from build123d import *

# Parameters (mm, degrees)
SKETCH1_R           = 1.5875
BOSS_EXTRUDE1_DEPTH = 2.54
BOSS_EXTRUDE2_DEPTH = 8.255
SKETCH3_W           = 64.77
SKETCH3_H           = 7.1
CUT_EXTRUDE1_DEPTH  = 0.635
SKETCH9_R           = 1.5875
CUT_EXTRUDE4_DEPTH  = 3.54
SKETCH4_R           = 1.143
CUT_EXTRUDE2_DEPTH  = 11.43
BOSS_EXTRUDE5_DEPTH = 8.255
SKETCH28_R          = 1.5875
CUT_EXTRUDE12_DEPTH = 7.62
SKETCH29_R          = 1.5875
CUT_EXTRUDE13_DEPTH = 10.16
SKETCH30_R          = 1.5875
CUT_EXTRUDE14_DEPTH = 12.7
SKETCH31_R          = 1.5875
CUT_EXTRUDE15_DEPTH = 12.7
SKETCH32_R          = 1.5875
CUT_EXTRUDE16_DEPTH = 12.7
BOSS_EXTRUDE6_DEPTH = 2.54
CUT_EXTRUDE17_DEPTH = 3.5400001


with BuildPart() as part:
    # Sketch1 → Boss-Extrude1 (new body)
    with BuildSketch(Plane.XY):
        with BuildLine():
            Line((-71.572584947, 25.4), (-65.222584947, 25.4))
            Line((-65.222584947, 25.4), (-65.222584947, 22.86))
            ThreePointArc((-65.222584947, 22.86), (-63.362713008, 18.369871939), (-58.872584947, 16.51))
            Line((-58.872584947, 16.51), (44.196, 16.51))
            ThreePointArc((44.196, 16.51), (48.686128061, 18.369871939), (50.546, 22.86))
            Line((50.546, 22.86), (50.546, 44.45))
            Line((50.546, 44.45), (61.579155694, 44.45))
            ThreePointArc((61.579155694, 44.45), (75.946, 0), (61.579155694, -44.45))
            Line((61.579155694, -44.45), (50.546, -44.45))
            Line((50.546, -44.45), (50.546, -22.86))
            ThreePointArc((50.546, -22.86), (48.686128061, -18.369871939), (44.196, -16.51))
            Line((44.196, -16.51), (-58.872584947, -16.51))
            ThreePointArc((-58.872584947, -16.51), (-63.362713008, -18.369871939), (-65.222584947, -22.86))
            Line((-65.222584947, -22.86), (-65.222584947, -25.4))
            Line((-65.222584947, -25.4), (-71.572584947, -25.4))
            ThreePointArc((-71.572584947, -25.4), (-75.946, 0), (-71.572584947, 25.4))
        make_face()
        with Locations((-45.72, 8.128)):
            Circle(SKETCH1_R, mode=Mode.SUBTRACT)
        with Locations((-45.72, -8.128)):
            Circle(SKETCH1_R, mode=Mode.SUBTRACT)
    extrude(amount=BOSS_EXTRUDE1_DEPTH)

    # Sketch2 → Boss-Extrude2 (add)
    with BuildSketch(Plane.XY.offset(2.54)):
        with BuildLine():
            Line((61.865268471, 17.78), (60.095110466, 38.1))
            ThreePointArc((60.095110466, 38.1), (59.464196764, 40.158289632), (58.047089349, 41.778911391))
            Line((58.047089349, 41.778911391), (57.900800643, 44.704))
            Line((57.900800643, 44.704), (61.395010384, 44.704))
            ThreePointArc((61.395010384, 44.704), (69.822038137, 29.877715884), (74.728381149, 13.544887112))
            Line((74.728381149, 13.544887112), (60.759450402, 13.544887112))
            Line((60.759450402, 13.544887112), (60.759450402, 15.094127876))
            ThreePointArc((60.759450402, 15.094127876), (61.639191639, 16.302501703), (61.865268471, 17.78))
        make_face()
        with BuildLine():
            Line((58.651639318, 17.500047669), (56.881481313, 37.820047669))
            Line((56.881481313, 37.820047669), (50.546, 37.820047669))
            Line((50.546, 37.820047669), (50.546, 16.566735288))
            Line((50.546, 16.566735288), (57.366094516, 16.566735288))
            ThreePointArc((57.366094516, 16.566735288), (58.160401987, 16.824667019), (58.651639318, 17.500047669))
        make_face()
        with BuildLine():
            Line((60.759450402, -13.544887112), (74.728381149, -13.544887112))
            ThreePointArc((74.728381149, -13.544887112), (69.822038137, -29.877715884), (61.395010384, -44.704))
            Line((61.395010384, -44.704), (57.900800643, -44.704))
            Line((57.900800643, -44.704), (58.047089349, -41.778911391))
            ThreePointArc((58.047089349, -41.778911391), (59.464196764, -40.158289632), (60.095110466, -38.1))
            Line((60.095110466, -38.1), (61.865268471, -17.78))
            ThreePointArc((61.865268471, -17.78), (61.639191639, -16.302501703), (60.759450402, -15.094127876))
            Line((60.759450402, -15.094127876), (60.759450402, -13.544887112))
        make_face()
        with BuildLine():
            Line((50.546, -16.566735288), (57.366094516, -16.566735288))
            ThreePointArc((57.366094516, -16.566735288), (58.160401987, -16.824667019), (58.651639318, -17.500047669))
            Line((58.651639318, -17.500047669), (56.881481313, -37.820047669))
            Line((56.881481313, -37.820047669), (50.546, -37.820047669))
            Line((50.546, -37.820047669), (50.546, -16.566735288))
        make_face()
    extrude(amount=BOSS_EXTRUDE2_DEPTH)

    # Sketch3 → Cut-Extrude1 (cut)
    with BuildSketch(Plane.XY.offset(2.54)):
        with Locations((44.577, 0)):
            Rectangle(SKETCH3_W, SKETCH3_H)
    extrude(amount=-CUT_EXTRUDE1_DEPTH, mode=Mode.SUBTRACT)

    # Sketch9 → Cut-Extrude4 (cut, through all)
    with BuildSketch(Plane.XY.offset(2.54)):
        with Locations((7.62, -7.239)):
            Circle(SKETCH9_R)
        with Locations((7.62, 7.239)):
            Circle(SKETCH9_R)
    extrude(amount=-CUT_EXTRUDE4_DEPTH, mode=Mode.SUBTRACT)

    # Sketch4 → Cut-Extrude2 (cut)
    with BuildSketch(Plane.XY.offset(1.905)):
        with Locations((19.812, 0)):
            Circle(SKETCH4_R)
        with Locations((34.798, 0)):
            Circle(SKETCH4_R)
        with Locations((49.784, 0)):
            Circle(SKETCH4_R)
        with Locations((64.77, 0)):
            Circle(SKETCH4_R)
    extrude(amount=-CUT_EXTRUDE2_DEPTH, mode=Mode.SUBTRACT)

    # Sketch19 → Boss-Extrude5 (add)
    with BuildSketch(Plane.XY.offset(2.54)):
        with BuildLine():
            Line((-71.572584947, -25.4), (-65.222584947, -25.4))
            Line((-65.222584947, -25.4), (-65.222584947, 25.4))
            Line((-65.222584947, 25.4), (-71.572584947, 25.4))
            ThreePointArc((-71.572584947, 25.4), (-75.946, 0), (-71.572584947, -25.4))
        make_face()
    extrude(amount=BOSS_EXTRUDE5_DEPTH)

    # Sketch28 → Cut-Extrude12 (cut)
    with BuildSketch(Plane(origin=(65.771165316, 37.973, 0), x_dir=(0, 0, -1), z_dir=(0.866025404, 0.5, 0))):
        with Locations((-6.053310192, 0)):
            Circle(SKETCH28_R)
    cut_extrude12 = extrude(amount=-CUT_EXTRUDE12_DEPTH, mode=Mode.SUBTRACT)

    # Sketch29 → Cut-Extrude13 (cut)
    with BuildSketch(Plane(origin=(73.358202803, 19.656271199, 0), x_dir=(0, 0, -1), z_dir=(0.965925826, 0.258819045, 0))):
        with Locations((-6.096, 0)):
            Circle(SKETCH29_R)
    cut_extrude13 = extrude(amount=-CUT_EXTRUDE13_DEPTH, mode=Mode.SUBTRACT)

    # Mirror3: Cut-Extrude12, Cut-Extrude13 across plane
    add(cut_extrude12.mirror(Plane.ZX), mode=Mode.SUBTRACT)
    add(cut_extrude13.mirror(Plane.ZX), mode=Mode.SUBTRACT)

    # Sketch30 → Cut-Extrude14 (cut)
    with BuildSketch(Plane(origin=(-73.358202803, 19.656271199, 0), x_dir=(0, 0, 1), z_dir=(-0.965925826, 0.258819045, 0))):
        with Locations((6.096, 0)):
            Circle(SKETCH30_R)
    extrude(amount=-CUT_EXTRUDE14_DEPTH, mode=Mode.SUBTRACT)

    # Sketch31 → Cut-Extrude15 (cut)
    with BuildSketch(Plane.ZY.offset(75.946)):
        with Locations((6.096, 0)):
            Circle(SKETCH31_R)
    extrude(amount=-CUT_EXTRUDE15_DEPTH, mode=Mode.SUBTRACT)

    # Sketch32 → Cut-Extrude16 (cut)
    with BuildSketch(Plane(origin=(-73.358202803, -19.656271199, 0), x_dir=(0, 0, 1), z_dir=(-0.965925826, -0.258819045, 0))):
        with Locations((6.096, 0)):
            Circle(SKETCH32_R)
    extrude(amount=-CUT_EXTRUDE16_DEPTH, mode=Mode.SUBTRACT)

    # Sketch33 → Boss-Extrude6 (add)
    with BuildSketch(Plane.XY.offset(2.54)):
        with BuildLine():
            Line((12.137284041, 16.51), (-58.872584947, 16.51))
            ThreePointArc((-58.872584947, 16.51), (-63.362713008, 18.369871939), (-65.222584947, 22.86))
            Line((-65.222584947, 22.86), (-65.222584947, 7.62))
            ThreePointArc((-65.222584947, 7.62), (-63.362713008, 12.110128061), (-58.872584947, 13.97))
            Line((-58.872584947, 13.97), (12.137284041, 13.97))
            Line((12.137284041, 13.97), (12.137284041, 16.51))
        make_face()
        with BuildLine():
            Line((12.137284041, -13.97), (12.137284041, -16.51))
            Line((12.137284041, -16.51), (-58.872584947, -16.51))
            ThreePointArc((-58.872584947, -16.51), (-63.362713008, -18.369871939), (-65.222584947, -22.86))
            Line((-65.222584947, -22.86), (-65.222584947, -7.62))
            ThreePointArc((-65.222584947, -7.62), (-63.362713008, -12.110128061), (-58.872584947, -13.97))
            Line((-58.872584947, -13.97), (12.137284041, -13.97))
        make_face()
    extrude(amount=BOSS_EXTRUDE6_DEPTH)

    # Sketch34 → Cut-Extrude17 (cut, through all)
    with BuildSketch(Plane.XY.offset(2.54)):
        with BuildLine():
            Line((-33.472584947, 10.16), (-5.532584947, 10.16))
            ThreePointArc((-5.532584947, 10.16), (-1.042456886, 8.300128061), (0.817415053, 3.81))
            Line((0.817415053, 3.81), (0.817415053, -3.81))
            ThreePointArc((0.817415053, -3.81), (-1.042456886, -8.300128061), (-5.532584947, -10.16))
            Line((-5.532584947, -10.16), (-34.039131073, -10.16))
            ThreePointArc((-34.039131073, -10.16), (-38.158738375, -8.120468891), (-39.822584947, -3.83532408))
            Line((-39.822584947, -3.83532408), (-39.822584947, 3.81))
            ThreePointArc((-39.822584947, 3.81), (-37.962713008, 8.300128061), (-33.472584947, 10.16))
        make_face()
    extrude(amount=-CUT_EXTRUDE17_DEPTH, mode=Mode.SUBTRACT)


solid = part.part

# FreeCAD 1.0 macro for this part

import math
import FreeCAD as App
import Part
import Sketcher

V = App.Vector
Q = App.Units.Quantity

doc = App.newDocument("Part")
body = doc.addObject("PartDesign::Body", "Body")

sketch1 = body.newObject("Sketcher::SketchObject", "Sketch")
sketch1.AttachmentSupport = (doc.getObject("XY_Plane"), [""])
sketch1.MapMode = "FlatFace"
sketch1.addGeometry([
    Part.LineSegment(V(-65.2, 25.4, 0), V(-71.6, 25.4, 0)),
    Part.ArcOfCircle(Part.Circle(V(0, 0, 0), V(0, 0, 1), 75.9), math.radians(160), math.radians(200)),
    Part.LineSegment(V(-71.6, -25.4, 0), V(-65.2, -25.4, 0)),
    Part.LineSegment(V(-65.2, -25.4, 0), V(-65.2, -22.9, 0)),
    Part.ArcOfCircle(Part.Circle(V(-58.9, -22.9, 0), V(0, 0, 1), 6.3), math.radians(90), math.radians(180)),
    Part.LineSegment(V(-58.9, -16.5, 0), V(44.2, -16.5, 0)),
    Part.ArcOfCircle(Part.Circle(V(44.2, -22.9, 0), V(0, 0, 1), 6.3), math.radians(0), math.radians(90)),
    Part.LineSegment(V(50.5, -22.9, 0), V(50.5, -44.5, 0)),
    Part.LineSegment(V(50.5, -44.5, 0), V(61.6, -44.5, 0)),
    Part.ArcOfCircle(Part.Circle(V(0, 0, 0), V(0, 0, 1), 75.9), math.radians(-36), math.radians(36)),
    Part.LineSegment(V(61.6, 44.5, 0), V(50.5, 44.5, 0)),
    Part.LineSegment(V(50.5, 44.5, 0), V(50.5, 22.9, 0)),
    Part.ArcOfCircle(Part.Circle(V(44.2, 22.9, 0), V(0, 0, 1), 6.3), math.radians(-90), math.radians(0)),
    Part.LineSegment(V(44.2, 16.5, 0), V(-58.9, 16.5, 0)),
    Part.ArcOfCircle(Part.Circle(V(-58.9, 22.9, 0), V(0, 0, 1), 6.3), math.radians(180), math.radians(270)),
    Part.LineSegment(V(-65.2, 22.9, 0), V(-65.2, 25.4, 0)),
    Part.Circle(V(-45.7, -8.1, 0), V(0, 0, 1), 1.6),
    Part.Circle(V(-45.7, 8.1, 0), V(0, 0, 1), 1.6),
], False)
sketch1.addConstraint([
    Sketcher.Constraint("Coincident", 0, 2, 1, 1),
    Sketcher.Constraint("Coincident", 1, 2, 2, 1),
    Sketcher.Constraint("Coincident", 2, 2, 3, 1),
    Sketcher.Constraint("Tangent", 3, 2, 4, 2),
    Sketcher.Constraint("Tangent", 4, 1, 5, 1),
    Sketcher.Constraint("Tangent", 5, 2, 6, 2),
    Sketcher.Constraint("Tangent", 6, 1, 7, 1),
    Sketcher.Constraint("Coincident", 7, 2, 8, 1),
    Sketcher.Constraint("Coincident", 8, 2, 9, 1),
    Sketcher.Constraint("Coincident", 9, 2, 10, 1),
    Sketcher.Constraint("Coincident", 10, 2, 11, 1),
    Sketcher.Constraint("Tangent", 11, 2, 12, 2),
    Sketcher.Constraint("Tangent", 12, 1, 13, 1),
    Sketcher.Constraint("Tangent", 13, 2, 14, 2),
    Sketcher.Constraint("Tangent", 14, 1, 15, 1),
    Sketcher.Constraint("Coincident", 15, 2, 0, 1),
    Sketcher.Constraint("Horizontal", 0),
    Sketcher.Constraint("Horizontal", 2),
    Sketcher.Constraint("Vertical", 3),
    Sketcher.Constraint("Horizontal", 5),
    Sketcher.Constraint("Vertical", 7),
    Sketcher.Constraint("Horizontal", 8),
    Sketcher.Constraint("Horizontal", 10),
    Sketcher.Constraint("Vertical", 11),
    Sketcher.Constraint("Horizontal", 13),
    Sketcher.Constraint("Vertical", 15),
    Sketcher.Constraint("Coincident", 1, 3, -1, 1),
    Sketcher.Constraint("Coincident", 9, 3, -1, 1),
    Sketcher.Constraint("Equal", 4, 6),
    Sketcher.Constraint("Equal", 1, 9),
    Sketcher.Constraint("Equal", 6, 12),
    Sketcher.Constraint("Equal", 12, 14),
    Sketcher.Constraint("Equal", 16, 17),
    Sketcher.Constraint("Symmetric", 6, 3, 12, 3, -1),
    Sketcher.Constraint("Symmetric", 16, 3, 17, 3, -1),
    Sketcher.Constraint("Symmetric", 2, 2, 15, 2, -1),
    Sketcher.Constraint("Vertical", 8, 2, 9, 2),
    Sketcher.Constraint("Radius", 1, Q("2.99 in")),
    Sketcher.Constraint("Radius", 4, Q("0.25 in")),
    Sketcher.Constraint("Diameter", 16, Q("0.125 in")),
    Sketcher.Constraint("DistanceY", 3, 1, 3, 2, Q("0.1 in")),
    Sketcher.Constraint("DistanceY", -1, 1, 0, 2, Q("1 in")),
    Sketcher.Constraint("DistanceX", 0, 2, 0, 1, Q("0.25 in")),
    Sketcher.Constraint("DistanceY", 7, 2, 7, 1, Q("0.85 in")),
    Sketcher.Constraint("DistanceX", 16, 3, -1, 1, Q("1.8 in")),
    Sketcher.Constraint("DistanceX", -1, 1, 6, 3, Q("1.74 in")),
    Sketcher.Constraint("DistanceY", 16, 3, -1, 1, Q("0.32 in")),
])
pad1 = body.newObject("PartDesign::Pad", "Pad")
pad1.Profile = sketch1
pad1.Length = Q("0.1 in")

sketch2 = body.newObject("Sketcher::SketchObject", "Sketch001")
sketch2.AttachmentSupport = (doc.getObject("XY_Plane"), [""])
sketch2.MapMode = "FlatFace"
sketch2.AttachmentOffset = App.Placement(V(0, 0, 0.1 * 25.4), App.Rotation())
sketch2.addGeometry([
    Part.LineSegment(V(60.1, 38.1, 0), V(61.9, 17.8, 0)),
    Part.ArcOfCircle(Part.Circle(V(58.7, 17.5, 0), V(0, 0, 1), 3.2), math.radians(-50), math.radians(5)),
    Part.LineSegment(V(60.8, 15.1, 0), V(60.8, 13.5, 0)),
    Part.LineSegment(V(60.8, 13.5, 0), V(74.7, 13.5, 0)),
    Part.ArcOfCircle(Part.Circle(V(0, 0, 0), V(0, 0, 1), 75.9), math.radians(10), math.radians(36)),
    Part.LineSegment(V(61.4, 44.7, 0), V(57.9, 44.7, 0)),
    Part.LineSegment(V(57.9, 44.7, 0), V(58, 41.8, 0)),
    Part.ArcOfCircle(Part.Circle(V(55, 37.7, 0), V(0, 0, 1), 5.2), math.radians(5), math.radians(53)),
    Part.LineSegment(V(58.7, 17.5, 0), V(56.9, 37.8, 0)),
    Part.LineSegment(V(56.9, 37.8, 0), V(50.5, 37.8, 0)),
    Part.LineSegment(V(50.5, 37.8, 0), V(50.5, 16.6, 0)),
    Part.LineSegment(V(50.5, 16.6, 0), V(57.4, 16.6, 0)),
    Part.ArcOfCircle(Part.Circle(V(57.4, 17.9, 0), V(0, 0, 1), 1.4), math.radians(-90), math.radians(-18)),
    Part.LineSegment(V(74.7, -13.5, 0), V(60.8, -13.5, 0)),
    Part.LineSegment(V(60.8, -13.5, 0), V(60.8, -15.1, 0)),
    Part.ArcOfCircle(Part.Circle(V(58.7, -17.5, 0), V(0, 0, 1), 3.2), math.radians(-5), math.radians(50)),
    Part.LineSegment(V(61.9, -17.8, 0), V(60.1, -38.1, 0)),
    Part.ArcOfCircle(Part.Circle(V(55, -37.7, 0), V(0, 0, 1), 5.2), math.radians(-53), math.radians(-5)),
    Part.LineSegment(V(58, -41.8, 0), V(57.9, -44.7, 0)),
    Part.LineSegment(V(57.9, -44.7, 0), V(61.4, -44.7, 0)),
    Part.ArcOfCircle(Part.Circle(V(0, 0, 0), V(0, 0, 1), 75.9), math.radians(-36), math.radians(-10)),
    Part.LineSegment(V(57.4, -16.6, 0), V(50.5, -16.6, 0)),
    Part.LineSegment(V(50.5, -16.6, 0), V(50.5, -37.8, 0)),
    Part.LineSegment(V(50.5, -37.8, 0), V(56.9, -37.8, 0)),
    Part.LineSegment(V(56.9, -37.8, 0), V(58.7, -17.5, 0)),
    Part.ArcOfCircle(Part.Circle(V(57.4, -17.9, 0), V(0, 0, 1), 1.4), math.radians(18), math.radians(90)),
], False)
sketch2.addConstraint([
    Sketcher.Constraint("Tangent", 0, 2, 1, 2),
    Sketcher.Constraint("Coincident", 1, 1, 2, 1),
    Sketcher.Constraint("Coincident", 2, 2, 3, 1),
    Sketcher.Constraint("Coincident", 3, 2, 4, 1),
    Sketcher.Constraint("Coincident", 4, 2, 5, 1),
    Sketcher.Constraint("Coincident", 5, 2, 6, 1),
    Sketcher.Constraint("Coincident", 6, 2, 7, 2),
    Sketcher.Constraint("Tangent", 7, 1, 0, 1),
    Sketcher.Constraint("Coincident", 8, 2, 9, 1),
    Sketcher.Constraint("Coincident", 9, 2, 10, 1),
    Sketcher.Constraint("Coincident", 10, 2, 11, 1),
    Sketcher.Constraint("Tangent", 11, 2, 12, 1),
    Sketcher.Constraint("Coincident", 12, 2, 8, 1),
    Sketcher.Constraint("Coincident", 13, 2, 14, 1),
    Sketcher.Constraint("Coincident", 14, 2, 15, 2),
    Sketcher.Constraint("Tangent", 15, 1, 16, 1),
    Sketcher.Constraint("Tangent", 16, 2, 17, 2),
    Sketcher.Constraint("Coincident", 17, 1, 18, 1),
    Sketcher.Constraint("Coincident", 18, 2, 19, 1),
    Sketcher.Constraint("Coincident", 19, 2, 20, 1),
    Sketcher.Constraint("Coincident", 20, 2, 13, 1),
    Sketcher.Constraint("Coincident", 21, 2, 22, 1),
    Sketcher.Constraint("Coincident", 22, 2, 23, 1),
    Sketcher.Constraint("Coincident", 23, 2, 24, 1),
    Sketcher.Constraint("Coincident", 24, 2, 25, 1),
    Sketcher.Constraint("Tangent", 25, 2, 21, 1),
    Sketcher.Constraint("Vertical", 2),
    Sketcher.Constraint("Horizontal", 3),
    Sketcher.Constraint("Horizontal", 5),
    Sketcher.Constraint("Horizontal", 9),
    Sketcher.Constraint("Vertical", 10),
    Sketcher.Constraint("Horizontal", 11),
    Sketcher.Constraint("Horizontal", 13),
    Sketcher.Constraint("Vertical", 14),
    Sketcher.Constraint("Horizontal", 19),
    Sketcher.Constraint("Horizontal", 21),
    Sketcher.Constraint("Vertical", 22),
    Sketcher.Constraint("Horizontal", 23),
    Sketcher.Constraint("Coincident", 4, 3, -1, 1),
    Sketcher.Constraint("Coincident", 20, 3, -1, 1),
    Sketcher.Constraint("Equal", 1, 15),
    Sketcher.Constraint("Equal", 7, 17),
    Sketcher.Constraint("Equal", 4, 20),
    Sketcher.Constraint("Equal", 12, 25),
    Sketcher.Constraint("Symmetric", 1, 3, 15, 3, -1),
    Sketcher.Constraint("Symmetric", 7, 3, 17, 3, -1),
    Sketcher.Constraint("Symmetric", 12, 3, 25, 3, -1),
    Sketcher.Constraint("Symmetric", 2, 2, 13, 2, -1),
    Sketcher.Constraint("Symmetric", 5, 2, 18, 2, -1),
    Sketcher.Constraint("Symmetric", 9, 2, 22, 2, -1),
    Sketcher.Constraint("Parallel", 0, 8),
    Sketcher.Constraint("Parallel", 16, 24),
    Sketcher.Constraint("Vertical", 6, 2, 17, 1),
    Sketcher.Constraint("Vertical", 8, 2, 23, 2),
    Sketcher.Constraint("Equal", 0, 8),
    Sketcher.Constraint("Radius", 4, Q("2.99 in")),
    Sketcher.Constraint("DistanceY", -1, 1, 0, 2, Q("0.7 in")),
    Sketcher.Constraint("DistanceY", -1, 1, 7, 1, Q("1.5 in")),
    Sketcher.Constraint("DistanceY", -1, 1, 4, 2, Q("1.76 in")),
    Sketcher.Constraint("DistanceX", -1, 1, 9, 2, Q("1.99 in")),
    Sketcher.Constraint("Radius", 12, 1.352011),
    Sketcher.Constraint("Radius", 1, 3.160443),
    Sketcher.Constraint("Radius", 7, 5.150666),
    Sketcher.Constraint("DistanceY", 1, 3, 7, 3, Q("0.7931999 in")),
    Sketcher.Constraint("DistanceX", 3, 1, 3, 2, 13.968931),
    Sketcher.Constraint("DistanceX", 5, 2, 5, 1, 3.49421),
    Sketcher.Constraint("DistanceX", 9, 2, 9, 1, 6.335481),
    Sketcher.Constraint("DistanceY", 2, 2, 2, 1, 1.549241),
    Sketcher.Constraint("DistanceX", 1, 3, 1, 1, 2.042701),
    Sketcher.Constraint("DistanceY", 12, 2, 12, 3, 0.418699),
    Sketcher.Constraint("DistanceX", -1, 1, 6, 2, 58.047089),
    Sketcher.Constraint("DistanceY", 12, 3, 7, 3, 19.734251),
])
pad2 = body.newObject("PartDesign::Pad", "Pad001")
pad2.Profile = sketch2
pad2.Length = Q("0.325 in")

sketch3 = body.newObject("Sketcher::SketchObject", "Sketch002")
sketch3.AttachmentSupport = (doc.getObject("XY_Plane"), [""])
sketch3.MapMode = "FlatFace"
sketch3.AttachmentOffset = App.Placement(V(0, 0, 0.1 * 25.4), App.Rotation())
sketch3.addGeometry([
    Part.LineSegment(V(12, 4, 0), V(12, -4, 0)),
    Part.LineSegment(V(12, -4, 0), V(77, -4, 0)),
    Part.LineSegment(V(77, -4, 0), V(77, 4, 0)),
    Part.LineSegment(V(77, 4, 0), V(12, 4, 0)),
], False)
sketch3.addConstraint([
    Sketcher.Constraint("Coincident", 0, 2, 1, 1),
    Sketcher.Constraint("Coincident", 1, 2, 2, 1),
    Sketcher.Constraint("Coincident", 2, 2, 3, 1),
    Sketcher.Constraint("Coincident", 3, 2, 0, 1),
    Sketcher.Constraint("Vertical", 0),
    Sketcher.Constraint("Horizontal", 1),
    Sketcher.Constraint("Vertical", 2),
    Sketcher.Constraint("Horizontal", 3),
    Sketcher.Constraint("DistanceX", 1, 1, 1, 2, Q("2.55 in")),
    Sketcher.Constraint("DistanceX", -1, 1, 0, 2, Q("0.48 in")),
    Sketcher.Constraint("DistanceY", 0, 2, 0, 1, 7.1),
    Sketcher.Constraint("DistanceY", 0, 2, -1, 1, 3.55),
])
pocket1 = body.newObject("PartDesign::Pocket", "Pocket")
pocket1.Profile = sketch3
pocket1.Length = Q("0.025 in")

sketch4 = body.newObject("Sketcher::SketchObject", "Sketch003")
sketch4.AttachmentSupport = (doc.getObject("XY_Plane"), [""])
sketch4.MapMode = "FlatFace"
sketch4.AttachmentOffset = App.Placement(V(0, 0, 0.1 * 25.4), App.Rotation())
sketch4.addGeometry([
    Part.Circle(V(7.6, -7.2, 0), V(0, 0, 1), 1.6),
    Part.Circle(V(7.6, 7.2, 0), V(0, 0, 1), 1.6),
], False)
sketch4.addConstraint([
    Sketcher.Constraint("Equal", 0, 1),
    Sketcher.Constraint("Symmetric", 0, 3, 1, 3, -1),
    Sketcher.Constraint("Diameter", 0, Q("0.125 in")),
    Sketcher.Constraint("DistanceX", -1, 1, 0, 3, Q("0.3 in")),
    Sketcher.Constraint("DistanceY", 0, 3, 1, 3, Q("0.57 in")),
])
pocket2 = body.newObject("PartDesign::Pocket", "Pocket001")
pocket2.Profile = sketch4
pocket2.Type = "ThroughAll"

sketch5 = body.newObject("Sketcher::SketchObject", "Sketch004")
sketch5.AttachmentSupport = (doc.getObject("XY_Plane"), [""])
sketch5.MapMode = "FlatFace"
sketch5.AttachmentOffset = App.Placement(V(0, 0, 0.075 * 25.4), App.Rotation())
sketch5.addGeometry([
    Part.Circle(V(19.8, 0, 0), V(0, 0, 1), 1.1),
    Part.Circle(V(34.8, 0, 0), V(0, 0, 1), 1.1),
    Part.Circle(V(49.8, 0, 0), V(0, 0, 1), 1.1),
    Part.Circle(V(64.8, 0, 0), V(0, 0, 1), 1.1),
], False)
sketch5.addConstraint([
    Sketcher.Constraint("Equal", 0, 1),
    Sketcher.Constraint("Equal", 1, 2),
    Sketcher.Constraint("Equal", 2, 3),
    Sketcher.Constraint("PointOnObject", 0, 3, -1),
    Sketcher.Constraint("PointOnObject", 1, 3, -1),
    Sketcher.Constraint("PointOnObject", 2, 3, -1),
    Sketcher.Constraint("PointOnObject", 3, 3, -1),
    Sketcher.Constraint("Diameter", 0, Q("0.09 in")),
    Sketcher.Constraint("DistanceX", -1, 1, 0, 3, Q("0.78 in")),
    Sketcher.Constraint("DistanceX", -1, 1, 1, 3, Q("1.37 in")),
    Sketcher.Constraint("DistanceX", -1, 1, 2, 3, Q("1.96 in")),
    Sketcher.Constraint("DistanceX", -1, 1, 3, 3, Q("2.55 in")),
])
pocket3 = body.newObject("PartDesign::Pocket", "Pocket002")
pocket3.Profile = sketch5
pocket3.Length = Q("0.45 in")

sketch6 = body.newObject("Sketcher::SketchObject", "Sketch005")
sketch6.AttachmentSupport = (doc.getObject("XY_Plane"), [""])
sketch6.MapMode = "FlatFace"
sketch6.AttachmentOffset = App.Placement(V(0, 0, 0.1 * 25.4), App.Rotation())
sketch6.addGeometry([
    Part.LineSegment(V(-72, -25, 0), V(-65, -25, 0)),
    Part.LineSegment(V(-65, -25, 0), V(-65, 25, 0)),
    Part.LineSegment(V(-65, 25, 0), V(-72, 25, 0)),
    Part.ArcOfCircle(Part.Circle(V(0, 0, 0), V(0, 0, 1), 76), math.radians(160), math.radians(200)),
], False)
sketch6.addConstraint([
    Sketcher.Constraint("Coincident", 0, 2, 1, 1),
    Sketcher.Constraint("Coincident", 1, 2, 2, 1),
    Sketcher.Constraint("Coincident", 2, 2, 3, 1),
    Sketcher.Constraint("Coincident", 3, 2, 0, 1),
    Sketcher.Constraint("Horizontal", 0),
    Sketcher.Constraint("Vertical", 1),
    Sketcher.Constraint("Horizontal", 2),
    Sketcher.Constraint("Coincident", 3, 3, -1, 1),
    Sketcher.Constraint("Vertical", 2, 2, 3, 2),
    Sketcher.Constraint("DistanceY", 1, 1, 1, 2, Q("2 in")),
    Sketcher.Constraint("Radius", 3, Q("2.99 in")),
    Sketcher.Constraint("DistanceX", 0, 1, 0, 2, Q("0.25 in")),
])
pad3 = body.newObject("PartDesign::Pad", "Pad002")
pad3.Profile = sketch6
pad3.Length = Q("0.325 in")

sketch7 = body.newObject("Sketcher::SketchObject", "Sketch006")
sketch7.Placement = App.Placement(V(65.771165, 37.973, 0), App.Rotation(V(0, 0, -1), V(-0.5, 0.866025404, 0), V(0.866025404, 0.5, 0), "ZXY"))
sketch7.addGeometry(Part.Circle(V(-6.1, 0, 0), V(0, 0, 1), 1.6), False)
sketch7.addConstraint([
    Sketcher.Constraint("PointOnObject", 0, 3, -1),
    Sketcher.Constraint("Diameter", 0, Q("0.125 in")),
    Sketcher.Constraint("DistanceX", 0, 3, -1, 1, 6.05331),
])
pocket4 = body.newObject("PartDesign::Pocket", "Pocket003")
pocket4.Profile = sketch7
pocket4.Length = Q("0.3 in")

sketch8 = body.newObject("Sketcher::SketchObject", "Sketch007")
sketch8.Placement = App.Placement(V(73.358203, 19.656271, 0), App.Rotation(V(0, 0, -1), V(-0.258819045, 0.965925826, 0), V(0.965925826, 0.258819045, 0), "ZXY"))
sketch8.addGeometry(Part.Circle(V(-6.1, 0, 0), V(0, 0, 1), 1.6), False)
sketch8.addConstraint([
    Sketcher.Constraint("PointOnObject", 0, 3, -1),
    Sketcher.Constraint("Diameter", 0, Q("0.125 in")),
    Sketcher.Constraint("DistanceX", 0, 3, -1, 1, Q("0.24 in")),
])
pocket5 = body.newObject("PartDesign::Pocket", "Pocket004")
pocket5.Profile = sketch8
pocket5.Length = Q("0.4 in")
doc.recompute()

mirrored = body.newObject("PartDesign::Mirrored", "Mirrored")
mirrored.Originals = [pocket4, pocket5]
mirrored.MirrorPlane = (doc.getObject("XZ_Plane"), [""])
body.Tip = mirrored

sketch9 = body.newObject("Sketcher::SketchObject", "Sketch008")
sketch9.Placement = App.Placement(V(-73.358203, 19.656271, 0), App.Rotation(V(0, 0, 1), V(0.258819045, 0.965925826, 0), V(-0.965925826, 0.258819045, 0), "ZXY"))
sketch9.addGeometry(Part.Circle(V(6.1, 0, 0), V(0, 0, 1), 1.6), False)
sketch9.addConstraint([
    Sketcher.Constraint("PointOnObject", 0, 3, -1),
    Sketcher.Constraint("Diameter", 0, Q("0.125 in")),
    Sketcher.Constraint("DistanceX", -1, 1, 0, 3, Q("0.24 in")),
])
pocket6 = body.newObject("PartDesign::Pocket", "Pocket005")
pocket6.Profile = sketch9
pocket6.Length = Q("0.5 in")

sketch10 = body.newObject("Sketcher::SketchObject", "Sketch009")
sketch10.AttachmentSupport = (doc.getObject("YZ_Plane"), [""])
sketch10.MapMode = "FlatFace"
sketch10.AttachmentOffset = App.Placement(V(0, 0, -2.99 * 25.4), App.Rotation())
sketch10.addGeometry(Part.Circle(V(0, 6.1, 0), V(0, 0, 1), 1.6), False)
sketch10.addConstraint([
    Sketcher.Constraint("PointOnObject", 0, 3, -2),
    Sketcher.Constraint("Diameter", 0, Q("0.125 in")),
    Sketcher.Constraint("DistanceY", -1, 1, 0, 3, Q("0.24 in")),
])
pocket7 = body.newObject("PartDesign::Pocket", "Pocket006")
pocket7.Profile = sketch10
pocket7.Length = Q("0.5 in")
pocket7.Reversed = True

sketch11 = body.newObject("Sketcher::SketchObject", "Sketch010")
sketch11.Placement = App.Placement(V(-73.358203, -19.656271, 0), App.Rotation(V(0, 0, 1), V(-0.258819045, 0.965925826, 0), V(-0.965925826, -0.258819045, 0), "ZXY"))
sketch11.addGeometry(Part.Circle(V(6.1, 0, 0), V(0, 0, 1), 1.6), False)
sketch11.addConstraint([
    Sketcher.Constraint("PointOnObject", 0, 3, -1),
    Sketcher.Constraint("Diameter", 0, Q("0.125 in")),
    Sketcher.Constraint("DistanceX", -1, 1, 0, 3, Q("0.24 in")),
])
pocket8 = body.newObject("PartDesign::Pocket", "Pocket007")
pocket8.Profile = sketch11
pocket8.Length = Q("0.5 in")

sketch12 = body.newObject("Sketcher::SketchObject", "Sketch011")
sketch12.AttachmentSupport = (doc.getObject("XY_Plane"), [""])
sketch12.MapMode = "FlatFace"
sketch12.AttachmentOffset = App.Placement(V(0, 0, 0.1 * 25.4), App.Rotation())
sketch12.addGeometry([
    Part.LineSegment(V(12.1, 16.5, 0), V(-58.9, 16.5, 0)),
    Part.ArcOfCircle(Part.Circle(V(-58.9, 22.9, 0), V(0, 0, 1), 6.3), math.radians(180), math.radians(270)),
    Part.LineSegment(V(-65.2, 22.9, 0), V(-65.2, 7.6, 0)),
    Part.ArcOfCircle(Part.Circle(V(-58.9, 7.6, 0), V(0, 0, 1), 6.3), math.radians(90), math.radians(180)),
    Part.LineSegment(V(-58.9, 14, 0), V(12.1, 14, 0)),
    Part.LineSegment(V(12.1, 14, 0), V(12.1, 16.5, 0)),
    Part.LineSegment(V(12.1, -16.5, 0), V(12.1, -14, 0)),
    Part.LineSegment(V(12.1, -14, 0), V(-58.9, -14, 0)),
    Part.ArcOfCircle(Part.Circle(V(-58.9, -7.6, 0), V(0, 0, 1), 6.3), math.radians(180), math.radians(270)),
    Part.LineSegment(V(-65.2, -7.6, 0), V(-65.2, -22.9, 0)),
    Part.ArcOfCircle(Part.Circle(V(-58.9, -22.9, 0), V(0, 0, 1), 6.3), math.radians(90), math.radians(180)),
    Part.LineSegment(V(-58.9, -16.5, 0), V(12.1, -16.5, 0)),
], False)
sketch12.addConstraint([
    Sketcher.Constraint("Tangent", 0, 2, 1, 2),
    Sketcher.Constraint("Tangent", 1, 1, 2, 1),
    Sketcher.Constraint("Tangent", 2, 2, 3, 2),
    Sketcher.Constraint("Tangent", 3, 1, 4, 1),
    Sketcher.Constraint("Coincident", 4, 2, 5, 1),
    Sketcher.Constraint("Coincident", 5, 2, 0, 1),
    Sketcher.Constraint("Coincident", 6, 2, 7, 1),
    Sketcher.Constraint("Tangent", 7, 2, 8, 2),
    Sketcher.Constraint("Tangent", 8, 1, 9, 1),
    Sketcher.Constraint("Tangent", 9, 2, 10, 2),
    Sketcher.Constraint("Tangent", 10, 1, 11, 1),
    Sketcher.Constraint("Coincident", 11, 2, 6, 1),
    Sketcher.Constraint("Horizontal", 0),
    Sketcher.Constraint("Vertical", 2),
    Sketcher.Constraint("Horizontal", 4),
    Sketcher.Constraint("Vertical", 5),
    Sketcher.Constraint("Vertical", 6),
    Sketcher.Constraint("Horizontal", 7),
    Sketcher.Constraint("Vertical", 9),
    Sketcher.Constraint("Horizontal", 11),
    Sketcher.Constraint("Equal", 1, 3),
    Sketcher.Constraint("Equal", 3, 8),
    Sketcher.Constraint("Equal", 8, 10),
    Sketcher.Constraint("Symmetric", 3, 3, 8, 3, -1),
    Sketcher.Constraint("Symmetric", 5, 2, 11, 2, -1),
    Sketcher.Constraint("Radius", 1, Q("0.25 in")),
    Sketcher.Constraint("DistanceY", 2, 2, 2, 1, Q("0.6 in")),
    Sketcher.Constraint("DistanceY", -1, 1, 1, 3, Q("0.9 in")),
    Sketcher.Constraint("DistanceX", 0, 2, 0, 1, 71.009869),
    Sketcher.Constraint("DistanceX", 1, 3, -1, 1, 58.872585),
])
pad4 = body.newObject("PartDesign::Pad", "Pad003")
pad4.Profile = sketch12
pad4.Length = Q("0.1 in")

sketch13 = body.newObject("Sketcher::SketchObject", "Sketch012")
sketch13.AttachmentSupport = (doc.getObject("XY_Plane"), [""])
sketch13.MapMode = "FlatFace"
sketch13.AttachmentOffset = App.Placement(V(0, 0, 0.1 * 25.4), App.Rotation())
sketch13.addGeometry([
    Part.LineSegment(V(-6, 10, 0), V(-33, 10, 0)),
    Part.ArcOfCircle(Part.Circle(V(-33, 4, 0), V(0, 0, 1), 6), math.radians(90), math.radians(180)),
    Part.LineSegment(V(-40, 4, 0), V(-40, -4, 0)),
    Part.ArcOfCircle(Part.Circle(V(-33, -4, 0), V(0, 0, 1), 6), math.radians(180), math.radians(265)),
    Part.LineSegment(V(-34, -10, 0), V(-6, -10, 0)),
    Part.ArcOfCircle(Part.Circle(V(-6, -4, 0), V(0, 0, 1), 6), math.radians(-90), math.radians(0)),
    Part.LineSegment(V(1, -4, 0), V(1, 4, 0)),
    Part.ArcOfCircle(Part.Circle(V(-6, 4, 0), V(0, 0, 1), 6), math.radians(0), math.radians(90)),
], False)
sketch13.addConstraint([
    Sketcher.Constraint("Tangent", 0, 2, 1, 1),
    Sketcher.Constraint("Tangent", 1, 2, 2, 1),
    Sketcher.Constraint("Tangent", 2, 2, 3, 1),
    Sketcher.Constraint("Coincident", 3, 2, 4, 1),
    Sketcher.Constraint("Tangent", 4, 2, 5, 1),
    Sketcher.Constraint("Tangent", 5, 2, 6, 1),
    Sketcher.Constraint("Tangent", 6, 2, 7, 1),
    Sketcher.Constraint("Tangent", 7, 2, 0, 1),
    Sketcher.Constraint("Horizontal", 0),
    Sketcher.Constraint("Vertical", 2),
    Sketcher.Constraint("Horizontal", 4),
    Sketcher.Constraint("Vertical", 6),
    Sketcher.Constraint("Equal", 1, 3),
    Sketcher.Constraint("Equal", 3, 5),
    Sketcher.Constraint("Equal", 5, 7),
    Sketcher.Constraint("Radius", 1, Q("0.25 in")),
    Sketcher.Constraint("DistanceX", 0, 2, 0, 1, Q("1.1 in")),
    Sketcher.Constraint("DistanceY", 6, 1, 6, 2, Q("0.3 in")),
    Sketcher.Constraint("DistanceY", -1, 1, 0, 2, Q("0.4 in")),
    Sketcher.Constraint("DistanceX", 4, 1, 4, 2, 28.506546),
    Sketcher.Constraint("DistanceX", 3, 2, -1, 1, 34.039131),
])
pocket9 = body.newObject("PartDesign::Pocket", "Pocket008")
pocket9.Profile = sketch13
pocket9.Type = "ThroughAll"

doc.recompute()
